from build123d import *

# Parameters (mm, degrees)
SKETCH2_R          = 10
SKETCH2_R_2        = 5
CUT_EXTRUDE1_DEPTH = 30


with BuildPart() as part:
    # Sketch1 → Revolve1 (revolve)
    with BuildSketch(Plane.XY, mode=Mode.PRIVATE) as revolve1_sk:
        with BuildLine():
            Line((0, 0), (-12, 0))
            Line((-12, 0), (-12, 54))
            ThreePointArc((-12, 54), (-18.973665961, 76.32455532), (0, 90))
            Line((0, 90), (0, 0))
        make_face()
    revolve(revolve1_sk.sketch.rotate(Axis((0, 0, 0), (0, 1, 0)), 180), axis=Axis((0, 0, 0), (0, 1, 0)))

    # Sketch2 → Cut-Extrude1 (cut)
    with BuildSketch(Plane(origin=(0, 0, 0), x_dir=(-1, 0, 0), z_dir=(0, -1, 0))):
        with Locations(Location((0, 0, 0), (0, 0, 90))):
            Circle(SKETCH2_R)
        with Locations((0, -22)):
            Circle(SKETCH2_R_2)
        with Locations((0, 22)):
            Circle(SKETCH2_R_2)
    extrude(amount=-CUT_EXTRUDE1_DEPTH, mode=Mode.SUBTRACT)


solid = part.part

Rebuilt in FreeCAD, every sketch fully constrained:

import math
import FreeCAD as App
import Part
import Sketcher

V = App.Vector
Q = App.Units.Quantity

doc = App.newDocument("Part")
body = doc.addObject("PartDesign::Body", "Body")

sketch1 = doc.addObject("Sketcher::SketchObject", "Sketch")
body.addObject(sketch1)
sketch1.AttachmentSupport = (doc.XY_Plane, [""])
sketch1.MapMode = "FlatFace"
sketch1.addGeometry(Part.LineSegment(V(-12, 0, 0), V(0, 0, 0)), False)
sketch1.addGeometry(Part.LineSegment(V(0, 0, 0), V(0, 90, 0)), False)
sketch1.addGeometry(Part.ArcOfCircle(Part.Circle(V(0, 70, 0), V(0, 0, 1), 20), math.radians(90), math.radians(233.130102)), False)
sketch1.addGeometry(Part.LineSegment(V(-12, 54, 0), V(-12, 0, 0)), False)
sketch1.addConstraint(Sketcher.Constraint("Coincident", 0, 2, 1, 1))
sketch1.addConstraint(Sketcher.Constraint("Coincident", 1, 2, 2, 1))
sketch1.addConstraint(Sketcher.Constraint("Coincident", 2, 2, 3, 1))
sketch1.addConstraint(Sketcher.Constraint("Coincident", 3, 2, 0, 1))
sketch1.addConstraint(Sketcher.Constraint("Horizontal", 0))
sketch1.addConstraint(Sketcher.Constraint("Vertical", 1))
sketch1.addConstraint(Sketcher.Constraint("Vertical", 3))
sketch1.addConstraint(Sketcher.Constraint("Coincident", 0, 2, -1, 1))
sketch1.addConstraint(Sketcher.Constraint("PointOnObject", 2, 3, -2))
sketch1.addConstraint(Sketcher.Constraint("Radius", 2, Q("20 mm")))
sketch1.addConstraint(Sketcher.Constraint("DistanceX", 0, 1, 0, 2, Q("12 mm")))
sketch1.addConstraint(Sketcher.Constraint("DistanceY", 1, 1, 1, 2, Q("90 mm")))
revolution = doc.addObject("PartDesign::Revolution", "Revolution")
body.addObject(revolution)
revolution.Profile = sketch1
revolution.ReferenceAxis = (sketch1, ["V_Axis"])
revolution.Angle = 360

sketch2 = doc.addObject("Sketcher::SketchObject", "Sketch001")
body.addObject(sketch2)
sketch2.AttachmentSupport = (doc.XZ_Plane, [""])
sketch2.MapMode = "FlatFace"
sketch2.addGeometry(Part.Circle(V(0, 0, 0), V(0, 0, 1), 10), False)
sketch2.addGeometry(Part.Circle(V(0, 22, 0), V(0, 0, 1), 5), False)
sketch2.addGeometry(Part.Circle(V(0, -22, 0), V(0, 0, 1), 5), False)
sketch2.addConstraint(Sketcher.Constraint("Coincident", 0, 3, -1, 1))
sketch2.addConstraint(Sketcher.Constraint("Equal", 1, 2))
sketch2.addConstraint(Sketcher.Constraint("Symmetric", 1, 3, 2, 3, -1, 1))
sketch2.addConstraint(Sketcher.Constraint("PointOnObject", 1, 3, -2))
sketch2.addConstraint(Sketcher.Constraint("Diameter", 0, Q("20 mm")))
sketch2.addConstraint(Sketcher.Constraint("Diameter", 1, Q("10 mm")))
sketch2.addConstraint(Sketcher.Constraint("DistanceY", -1, 1, 1, 3, Q("22 mm")))
pocket1 = doc.addObject("PartDesign::Pocket", "Pocket")
body.addObject(pocket1)
pocket1.Profile = sketch2
pocket1.Length = 30

doc.recompute()
